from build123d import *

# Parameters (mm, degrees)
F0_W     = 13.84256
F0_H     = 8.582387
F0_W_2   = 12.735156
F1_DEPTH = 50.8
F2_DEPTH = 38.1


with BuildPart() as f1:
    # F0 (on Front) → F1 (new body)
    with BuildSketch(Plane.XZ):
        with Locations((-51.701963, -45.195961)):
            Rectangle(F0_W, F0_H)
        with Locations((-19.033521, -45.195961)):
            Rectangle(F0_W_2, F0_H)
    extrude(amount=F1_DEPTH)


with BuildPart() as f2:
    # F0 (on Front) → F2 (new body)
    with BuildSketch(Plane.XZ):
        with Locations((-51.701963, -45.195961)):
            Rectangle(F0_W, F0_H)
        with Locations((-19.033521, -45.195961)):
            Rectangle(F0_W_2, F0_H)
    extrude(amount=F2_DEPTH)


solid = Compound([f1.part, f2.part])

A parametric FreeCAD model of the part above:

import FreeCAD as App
import Part
import Sketcher
from FreeCAD import Vector
Q = App.Units.Quantity


def add_polygon(sketch, points):
    """Adds a closed chain of lines whose ends are joined by coincident constraints."""
    first, n = sketch.GeometryCount, len(points)
    for a, b in zip(points, points[1:] + points[:1]):
        sketch.addGeometry(Part.LineSegment(App.Vector(*a, 0), App.Vector(*b, 0)), False)
    for i in range(n):
        sketch.addConstraint(Sketcher.Constraint("Coincident", first + i, 2, first + (i + 1) % n, 1))

doc = App.newDocument("Part")
body = doc.addObject("PartDesign::Body", "Body")
body.AllowCompound = True

# Sketch on XZ plane
sketch1 = body.newObject("Sketcher::SketchObject", "Sketch")
sketch1.AttachmentSupport = (doc.getObject("XZ_Plane"), [""])
sketch1.MapMode = "FlatFace"
add_polygon(sketch1, [(-59, -41), (-59, -49), (-45, -49), (-45, -41)])  # lines 0-3
add_polygon(sketch1, [(-25, -41), (-25, -49), (-13, -49), (-13, -41)])  # lines 4-7
sketch1.addConstraint([
    Sketcher.Constraint("Vertical", 0),
    Sketcher.Constraint("Horizontal", 1),
    Sketcher.Constraint("Vertical", 2),
    Sketcher.Constraint("Horizontal", 3),
    Sketcher.Constraint("Vertical", 4),
    Sketcher.Constraint("Horizontal", 5),
    Sketcher.Constraint("Vertical", 6),
    Sketcher.Constraint("Horizontal", 7),
    Sketcher.Constraint("Horizontal", 1, 2, 4, 2),
    Sketcher.Constraint("Horizontal", 3, 2, 6, 2),
    Sketcher.Constraint("DistanceX", 1, 1, 1, 2, Q("13.84256 mm")),
    Sketcher.Constraint("DistanceX", 4, 2, -1, 1, Q("25.401099 mm")),
    Sketcher.Constraint("DistanceX", 0, 2, 5, 2, Q("45.9573 mm")),
    Sketcher.Constraint("DistanceX", 5, 1, 5, 2, Q("12.735156 mm")),
    Sketcher.Constraint("DistanceY", 0, 2, 0, 1, Q("8.582387 mm")),
    Sketcher.Constraint("DistanceY", 0, 2, -1, 1, Q("49.487155 mm")),
])
pad1 = body.newObject("PartDesign::Pad", "Pad")
pad1.Profile = sketch1
pad1.Length = Q("2 in")
body2 = doc.addObject("PartDesign::Body", "Body001")
body2.AllowCompound = True

# Sketch on XZ plane
sketch2 = body2.newObject("Sketcher::SketchObject", "Sketch001")
sketch2.AttachmentSupport = (doc.getObject("XZ_Plane001"), [""])
sketch2.MapMode = "FlatFace"
add_polygon(sketch2, [(-59, -41), (-59, -49), (-45, -49), (-45, -41)])  # lines 0-3
add_polygon(sketch2, [(-25, -41), (-25, -49), (-13, -49), (-13, -41)])  # lines 4-7
sketch2.addConstraint([
    Sketcher.Constraint("Vertical", 0),
    Sketcher.Constraint("Horizontal", 1),
    Sketcher.Constraint("Vertical", 2),
    Sketcher.Constraint("Horizontal", 3),
    Sketcher.Constraint("Vertical", 4),
    Sketcher.Constraint("Horizontal", 5),
    Sketcher.Constraint("Vertical", 6),
    Sketcher.Constraint("Horizontal", 7),
    Sketcher.Constraint("Horizontal", 1, 2, 4, 2),
    Sketcher.Constraint("Horizontal", 3, 2, 6, 2),
    Sketcher.Constraint("DistanceX", 1, 1, 1, 2, Q("13.84256 mm")),
    Sketcher.Constraint("DistanceX", 4, 2, -1, 1, Q("25.401099 mm")),
    Sketcher.Constraint("DistanceX", 0, 2, 5, 2, Q("45.9573 mm")),
    Sketcher.Constraint("DistanceX", 5, 1, 5, 2, Q("12.735156 mm")),
    Sketcher.Constraint("DistanceY", 0, 2, 0, 1, Q("8.582387 mm")),
    Sketcher.Constraint("DistanceY", 0, 2, -1, 1, Q("49.487155 mm")),
])
pad2 = body2.newObject("PartDesign::Pad", "Pad001")
pad2.Profile = sketch2
pad2.Length = Q("1.5 in")

doc.recompute()
